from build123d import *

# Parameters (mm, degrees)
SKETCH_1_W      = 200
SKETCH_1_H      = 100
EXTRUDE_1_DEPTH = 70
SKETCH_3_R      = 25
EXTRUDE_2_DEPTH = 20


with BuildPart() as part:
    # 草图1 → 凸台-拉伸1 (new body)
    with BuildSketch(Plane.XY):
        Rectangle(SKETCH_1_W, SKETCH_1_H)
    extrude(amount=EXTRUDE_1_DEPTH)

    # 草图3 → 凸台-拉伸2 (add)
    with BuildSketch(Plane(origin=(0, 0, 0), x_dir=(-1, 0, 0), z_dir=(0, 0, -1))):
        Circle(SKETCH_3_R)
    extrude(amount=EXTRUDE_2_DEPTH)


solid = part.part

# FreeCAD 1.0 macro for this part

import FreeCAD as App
import Part
import Sketcher

V = App.Vector

doc = App.newDocument("Part")
body = doc.addObject("PartDesign::Body", "Body")

# Sketch on XY plane
sketch1 = body.newObject("Sketcher::SketchObject", "Sketch")
sketch1.AttachmentSupport = (doc.getObject("XY_Plane"), [""])
sketch1.MapMode = "FlatFace"
sketch1.addGeometry(Part.LineSegment(V(-100, 50, 0), V(-100, -50, 0)), False)
sketch1.addGeometry(Part.LineSegment(V(-100, -50, 0), V(100, -50, 0)), False)
sketch1.addGeometry(Part.LineSegment(V(100, -50, 0), V(100, 50, 0)), False)
sketch1.addGeometry(Part.LineSegment(V(100, 50, 0), V(-100, 50, 0)), False)
sketch1.addConstraint(Sketcher.Constraint("Coincident", 0, 2, 1, 1))
sketch1.addConstraint(Sketcher.Constraint("Coincident", 1, 2, 2, 1))
sketch1.addConstraint(Sketcher.Constraint("Coincident", 2, 2, 3, 1))
sketch1.addConstraint(Sketcher.Constraint("Coincident", 3, 2, 0, 1))
sketch1.addConstraint(Sketcher.Constraint("Vertical", 0))
sketch1.addConstraint(Sketcher.Constraint("Horizontal", 1))
sketch1.addConstraint(Sketcher.Constraint("Vertical", 2))
sketch1.addConstraint(Sketcher.Constraint("Horizontal", 3))
sketch1.addConstraint(Sketcher.Constraint("Symmetric", 0, 2, 2, 2, -1, 1))
sketch1.addConstraint(Sketcher.Constraint("DistanceX", 1, 1, 1, 2, 200.0))
sketch1.addConstraint(Sketcher.Constraint("DistanceY", 0, 2, 0, 1, 100.0))
pad1 = body.newObject("PartDesign::Pad", "Pad")
pad1.Profile = sketch1
pad1.Length = 70

# Sketch on XY plane
sketch2 = body.newObject("Sketcher::SketchObject", "Sketch001")
sketch2.AttachmentSupport = (doc.getObject("XY_Plane"), [""])
sketch2.MapMode = "FlatFace"
sketch2.addGeometry(Part.Circle(V(0, 0, 0), V(0, 0, 1), 25), False)
sketch2.addConstraint(Sketcher.Constraint("Coincident", 0, 3, -1, 1))
sketch2.addConstraint(Sketcher.Constraint("Diameter", 0, 50.0))
pad2 = body.newObject("PartDesign::Pad", "Pad001")
pad2.Profile = sketch2
pad2.Length = 20
pad2.Reversed = True

doc.recompute()
